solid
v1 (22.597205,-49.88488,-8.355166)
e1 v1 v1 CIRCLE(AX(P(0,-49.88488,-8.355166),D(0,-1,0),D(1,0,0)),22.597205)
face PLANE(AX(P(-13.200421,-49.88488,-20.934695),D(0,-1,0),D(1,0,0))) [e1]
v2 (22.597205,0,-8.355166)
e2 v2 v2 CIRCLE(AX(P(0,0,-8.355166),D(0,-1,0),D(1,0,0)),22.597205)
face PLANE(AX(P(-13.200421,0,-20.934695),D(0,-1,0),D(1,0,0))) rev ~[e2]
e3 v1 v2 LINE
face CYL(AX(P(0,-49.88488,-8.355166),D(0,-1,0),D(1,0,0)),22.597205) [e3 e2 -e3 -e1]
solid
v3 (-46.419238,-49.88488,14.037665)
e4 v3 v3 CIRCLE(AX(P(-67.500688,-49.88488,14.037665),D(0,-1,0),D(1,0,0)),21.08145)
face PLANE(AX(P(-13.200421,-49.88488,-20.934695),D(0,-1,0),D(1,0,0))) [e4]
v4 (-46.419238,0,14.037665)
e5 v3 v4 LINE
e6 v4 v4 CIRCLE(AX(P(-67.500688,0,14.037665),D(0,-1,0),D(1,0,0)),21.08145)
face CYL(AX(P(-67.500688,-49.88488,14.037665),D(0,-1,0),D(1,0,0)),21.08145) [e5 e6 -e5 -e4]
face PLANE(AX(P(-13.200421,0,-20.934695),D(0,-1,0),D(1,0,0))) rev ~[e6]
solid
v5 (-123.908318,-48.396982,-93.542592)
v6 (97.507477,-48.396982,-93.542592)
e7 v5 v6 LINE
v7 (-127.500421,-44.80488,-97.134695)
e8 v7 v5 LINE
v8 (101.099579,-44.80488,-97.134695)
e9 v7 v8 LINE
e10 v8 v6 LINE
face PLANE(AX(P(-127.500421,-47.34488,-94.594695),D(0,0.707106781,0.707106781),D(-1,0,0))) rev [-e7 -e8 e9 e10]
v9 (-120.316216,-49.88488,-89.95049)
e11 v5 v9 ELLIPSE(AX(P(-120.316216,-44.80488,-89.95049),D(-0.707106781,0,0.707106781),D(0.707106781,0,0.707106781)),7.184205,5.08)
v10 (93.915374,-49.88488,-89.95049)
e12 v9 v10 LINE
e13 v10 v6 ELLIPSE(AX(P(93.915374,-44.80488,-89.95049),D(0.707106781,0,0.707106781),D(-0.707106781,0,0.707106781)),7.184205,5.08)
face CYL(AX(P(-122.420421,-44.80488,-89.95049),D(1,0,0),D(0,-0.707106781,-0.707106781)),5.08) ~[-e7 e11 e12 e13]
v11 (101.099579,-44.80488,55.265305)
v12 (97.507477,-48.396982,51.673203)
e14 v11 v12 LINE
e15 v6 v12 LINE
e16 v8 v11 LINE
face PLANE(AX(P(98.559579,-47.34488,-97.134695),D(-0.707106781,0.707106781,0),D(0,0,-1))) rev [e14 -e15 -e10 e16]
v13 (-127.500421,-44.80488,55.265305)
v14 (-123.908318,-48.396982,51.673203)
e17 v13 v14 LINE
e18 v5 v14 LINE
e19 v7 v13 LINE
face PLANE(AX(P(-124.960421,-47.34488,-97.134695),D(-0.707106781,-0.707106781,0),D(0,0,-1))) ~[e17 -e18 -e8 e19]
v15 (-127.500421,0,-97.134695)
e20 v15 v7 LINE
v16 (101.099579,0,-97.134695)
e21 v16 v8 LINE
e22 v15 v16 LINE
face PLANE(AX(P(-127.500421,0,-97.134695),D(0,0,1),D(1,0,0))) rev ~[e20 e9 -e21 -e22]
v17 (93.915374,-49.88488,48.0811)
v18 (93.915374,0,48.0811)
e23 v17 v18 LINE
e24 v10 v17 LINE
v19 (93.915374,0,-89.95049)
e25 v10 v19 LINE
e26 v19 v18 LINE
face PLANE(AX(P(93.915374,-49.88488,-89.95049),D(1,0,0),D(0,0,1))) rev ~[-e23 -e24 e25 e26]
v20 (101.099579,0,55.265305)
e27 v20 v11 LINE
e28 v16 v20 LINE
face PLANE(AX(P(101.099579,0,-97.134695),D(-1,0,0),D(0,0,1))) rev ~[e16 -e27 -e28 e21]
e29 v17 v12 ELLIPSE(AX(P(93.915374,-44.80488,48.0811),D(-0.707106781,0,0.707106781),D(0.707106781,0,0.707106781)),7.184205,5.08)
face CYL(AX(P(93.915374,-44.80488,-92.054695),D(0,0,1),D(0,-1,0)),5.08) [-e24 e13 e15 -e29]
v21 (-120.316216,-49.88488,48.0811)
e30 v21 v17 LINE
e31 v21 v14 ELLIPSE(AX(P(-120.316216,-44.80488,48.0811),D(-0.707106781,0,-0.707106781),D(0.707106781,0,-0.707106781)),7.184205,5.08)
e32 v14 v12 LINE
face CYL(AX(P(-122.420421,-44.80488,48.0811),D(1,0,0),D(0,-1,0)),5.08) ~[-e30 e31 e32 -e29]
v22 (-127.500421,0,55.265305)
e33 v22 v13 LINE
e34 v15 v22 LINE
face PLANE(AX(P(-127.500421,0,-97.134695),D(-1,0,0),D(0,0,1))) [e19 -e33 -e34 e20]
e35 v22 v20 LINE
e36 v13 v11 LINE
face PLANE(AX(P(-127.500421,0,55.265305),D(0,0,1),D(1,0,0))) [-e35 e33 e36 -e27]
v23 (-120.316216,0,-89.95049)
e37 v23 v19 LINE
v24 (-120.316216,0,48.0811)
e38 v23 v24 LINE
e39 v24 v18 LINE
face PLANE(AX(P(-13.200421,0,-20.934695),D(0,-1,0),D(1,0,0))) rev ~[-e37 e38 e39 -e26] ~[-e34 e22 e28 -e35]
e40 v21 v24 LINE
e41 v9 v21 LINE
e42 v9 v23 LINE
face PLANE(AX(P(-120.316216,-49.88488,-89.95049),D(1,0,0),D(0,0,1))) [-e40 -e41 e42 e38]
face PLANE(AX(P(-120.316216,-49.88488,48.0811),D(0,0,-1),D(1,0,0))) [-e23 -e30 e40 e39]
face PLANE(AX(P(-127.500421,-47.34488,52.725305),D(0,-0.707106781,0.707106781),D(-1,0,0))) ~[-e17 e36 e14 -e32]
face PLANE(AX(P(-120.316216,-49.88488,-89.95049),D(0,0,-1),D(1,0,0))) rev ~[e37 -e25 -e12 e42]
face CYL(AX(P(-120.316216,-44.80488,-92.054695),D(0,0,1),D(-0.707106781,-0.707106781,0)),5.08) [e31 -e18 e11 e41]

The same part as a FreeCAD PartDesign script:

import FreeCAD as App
import Part
import Sketcher
Q = App.Units.Quantity


def edges_at(feature, points):
    """Names of the edges that pass closest to the given points."""
    edges = feature.Shape.Edges
    near = lambda p: min(range(len(edges)), key=lambda i: edges[i].distToShape(Part.Vertex(*p))[0])
    return sorted({f"Edge{near(p) + 1}" for p in points})

doc = App.newDocument("Part")
body = doc.addObject("PartDesign::Body", "Body")
body.AllowCompound = True

# Sketch on XZ plane
sketch1 = body.newObject("Sketcher::SketchObject", "Sketch")
sketch1.AttachmentSupport = (doc.getObject("XZ_Plane"), [""])
sketch1.MapMode = "FlatFace"
sketch1.addGeometry([
    Part.LineSegment(App.Vector(-127.500421, 55.265305, 0), App.Vector(-127.500421, -97.134695, 0)),
    Part.LineSegment(App.Vector(-127.500421, -97.134695, 0), App.Vector(101.099579, -97.134695, 0)),
    Part.LineSegment(App.Vector(101.099579, -97.134695, 0), App.Vector(101.099579, 55.265305, 0)),
    Part.LineSegment(App.Vector(101.099579, 55.265305, 0), App.Vector(-127.500421, 55.265305, 0)),
], False)
sketch1.addConstraint([
    Sketcher.Constraint("Coincident", 0, 2, 1, 1),
    Sketcher.Constraint("Coincident", 1, 2, 2, 1),
    Sketcher.Constraint("Coincident", 2, 2, 3, 1),
    Sketcher.Constraint("Coincident", 3, 2, 0, 1),
    Sketcher.Constraint("Vertical", 0),
    Sketcher.Constraint("Horizontal", 1),
    Sketcher.Constraint("Vertical", 2),
    Sketcher.Constraint("Horizontal", 3),
    Sketcher.Constraint("DistanceX", 1, 1, 1, 2, Q("9 in")),
    Sketcher.Constraint("DistanceY", 0, 2, 0, 1, Q("6 in")),
    Sketcher.Constraint("DistanceX", 0, 2, -1, 1, Q("127.500421 mm")),
    Sketcher.Constraint("DistanceY", 0, 2, -1, 1, Q("97.134695 mm")),
])
pad1 = body.newObject("PartDesign::Pad", "Pad")
pad1.Profile = sketch1
pad1.Length = 49.88488
doc.recompute()

chamfer = body.newObject("PartDesign::Chamfer", "Chamfer")
chamfer.Base = (pad1, edges_at(pad1, [
    (-13.2, -49.885, 55.265),
    (101.1, -49.885, -20.935),
    (-13.2, -49.885, -97.135),
    (-127.5, -49.885, -20.935),
]))
chamfer.Size = Q("0.2 in")
doc.recompute()

fillet = body.newObject("PartDesign::Fillet", "Fillet")
fillet.Base = (chamfer, edges_at(chamfer, [
    (-13.2, -49.885, 50.185),
    (-122.42, -49.885, -20.935),
    (96.02, -49.885, -20.935),
    (-13.2, -49.885, -92.055),
]))
fillet.Radius = Q("0.2 in")

# Sketch on XZ plane
sketch2 = body.newObject("Sketcher::SketchObject", "Sketch001")
sketch2.AttachmentSupport = (doc.getObject("XZ_Plane"), [""])
sketch2.MapMode = "FlatFace"
sketch2.AttachmentOffset = App.Placement(App.Vector(0, 0, 49.88488), App.Rotation())
sketch2.addGeometry([
    Part.LineSegment(App.Vector(-120.316216, 48.0811, 0), App.Vector(-120.316216, -89.95049, 0)),  # 0
    Part.LineSegment(App.Vector(-120.316216, -89.95049, 0), App.Vector(93.915374, -89.95049, 0)),  # 1
    Part.LineSegment(App.Vector(93.915374, -89.95049, 0), App.Vector(93.915374, 48.0811, 0)),  # 2
    Part.LineSegment(App.Vector(93.915374, 48.0811, 0), App.Vector(-120.316216, 48.0811, 0)),  # 3
    Part.Circle(App.Vector(0, -8.355166, 0), App.Vector(0, 0, 1), 22.597205),  # 4
    Part.Circle(App.Vector(-67.500688, 14.037665, 0), App.Vector(0, 0, 1), 21.08145),  # 5
], False)
sketch2.addConstraint([
    Sketcher.Constraint("Coincident", 0, 2, 1, 1),
    Sketcher.Constraint("Coincident", 1, 2, 2, 1),
    Sketcher.Constraint("Coincident", 2, 2, 3, 1),
    Sketcher.Constraint("Coincident", 3, 2, 0, 1),
    Sketcher.Constraint("Vertical", 0),
    Sketcher.Constraint("Horizontal", 1),
    Sketcher.Constraint("Vertical", 2),
    Sketcher.Constraint("Horizontal", 3),
    Sketcher.Constraint("PointOnObject", 4, 3, -2),
    Sketcher.Constraint("Diameter", 5, Q("42.1629 mm")),
    Sketcher.Constraint("Diameter", 4, Q("45.194409 mm")),
    Sketcher.Constraint("DistanceX", 1, 1, 1, 2, Q("214.23159 mm")),
    Sketcher.Constraint("DistanceY", 0, 2, 0, 1, Q("138.03159 mm")),
    Sketcher.Constraint("DistanceY", -1, 1, 2, 2, Q("48.0811 mm")),
    Sketcher.Constraint("DistanceX", 5, 3, -1, 1, Q("67.500688 mm")),
    Sketcher.Constraint("DistanceY", 4, 3, 5, 3, Q("22.392831 mm")),
    Sketcher.Constraint("DistanceY", 4, 3, -1, 1, Q("8.355166 mm")),
    Sketcher.Constraint("DistanceX", 0, 2, -1, 1, Q("120.316216 mm")),
])
pocket1 = body.newObject("PartDesign::Pocket", "Pocket")
pocket1.Profile = sketch2
pocket1.Length = 221.82462

doc.recompute()
